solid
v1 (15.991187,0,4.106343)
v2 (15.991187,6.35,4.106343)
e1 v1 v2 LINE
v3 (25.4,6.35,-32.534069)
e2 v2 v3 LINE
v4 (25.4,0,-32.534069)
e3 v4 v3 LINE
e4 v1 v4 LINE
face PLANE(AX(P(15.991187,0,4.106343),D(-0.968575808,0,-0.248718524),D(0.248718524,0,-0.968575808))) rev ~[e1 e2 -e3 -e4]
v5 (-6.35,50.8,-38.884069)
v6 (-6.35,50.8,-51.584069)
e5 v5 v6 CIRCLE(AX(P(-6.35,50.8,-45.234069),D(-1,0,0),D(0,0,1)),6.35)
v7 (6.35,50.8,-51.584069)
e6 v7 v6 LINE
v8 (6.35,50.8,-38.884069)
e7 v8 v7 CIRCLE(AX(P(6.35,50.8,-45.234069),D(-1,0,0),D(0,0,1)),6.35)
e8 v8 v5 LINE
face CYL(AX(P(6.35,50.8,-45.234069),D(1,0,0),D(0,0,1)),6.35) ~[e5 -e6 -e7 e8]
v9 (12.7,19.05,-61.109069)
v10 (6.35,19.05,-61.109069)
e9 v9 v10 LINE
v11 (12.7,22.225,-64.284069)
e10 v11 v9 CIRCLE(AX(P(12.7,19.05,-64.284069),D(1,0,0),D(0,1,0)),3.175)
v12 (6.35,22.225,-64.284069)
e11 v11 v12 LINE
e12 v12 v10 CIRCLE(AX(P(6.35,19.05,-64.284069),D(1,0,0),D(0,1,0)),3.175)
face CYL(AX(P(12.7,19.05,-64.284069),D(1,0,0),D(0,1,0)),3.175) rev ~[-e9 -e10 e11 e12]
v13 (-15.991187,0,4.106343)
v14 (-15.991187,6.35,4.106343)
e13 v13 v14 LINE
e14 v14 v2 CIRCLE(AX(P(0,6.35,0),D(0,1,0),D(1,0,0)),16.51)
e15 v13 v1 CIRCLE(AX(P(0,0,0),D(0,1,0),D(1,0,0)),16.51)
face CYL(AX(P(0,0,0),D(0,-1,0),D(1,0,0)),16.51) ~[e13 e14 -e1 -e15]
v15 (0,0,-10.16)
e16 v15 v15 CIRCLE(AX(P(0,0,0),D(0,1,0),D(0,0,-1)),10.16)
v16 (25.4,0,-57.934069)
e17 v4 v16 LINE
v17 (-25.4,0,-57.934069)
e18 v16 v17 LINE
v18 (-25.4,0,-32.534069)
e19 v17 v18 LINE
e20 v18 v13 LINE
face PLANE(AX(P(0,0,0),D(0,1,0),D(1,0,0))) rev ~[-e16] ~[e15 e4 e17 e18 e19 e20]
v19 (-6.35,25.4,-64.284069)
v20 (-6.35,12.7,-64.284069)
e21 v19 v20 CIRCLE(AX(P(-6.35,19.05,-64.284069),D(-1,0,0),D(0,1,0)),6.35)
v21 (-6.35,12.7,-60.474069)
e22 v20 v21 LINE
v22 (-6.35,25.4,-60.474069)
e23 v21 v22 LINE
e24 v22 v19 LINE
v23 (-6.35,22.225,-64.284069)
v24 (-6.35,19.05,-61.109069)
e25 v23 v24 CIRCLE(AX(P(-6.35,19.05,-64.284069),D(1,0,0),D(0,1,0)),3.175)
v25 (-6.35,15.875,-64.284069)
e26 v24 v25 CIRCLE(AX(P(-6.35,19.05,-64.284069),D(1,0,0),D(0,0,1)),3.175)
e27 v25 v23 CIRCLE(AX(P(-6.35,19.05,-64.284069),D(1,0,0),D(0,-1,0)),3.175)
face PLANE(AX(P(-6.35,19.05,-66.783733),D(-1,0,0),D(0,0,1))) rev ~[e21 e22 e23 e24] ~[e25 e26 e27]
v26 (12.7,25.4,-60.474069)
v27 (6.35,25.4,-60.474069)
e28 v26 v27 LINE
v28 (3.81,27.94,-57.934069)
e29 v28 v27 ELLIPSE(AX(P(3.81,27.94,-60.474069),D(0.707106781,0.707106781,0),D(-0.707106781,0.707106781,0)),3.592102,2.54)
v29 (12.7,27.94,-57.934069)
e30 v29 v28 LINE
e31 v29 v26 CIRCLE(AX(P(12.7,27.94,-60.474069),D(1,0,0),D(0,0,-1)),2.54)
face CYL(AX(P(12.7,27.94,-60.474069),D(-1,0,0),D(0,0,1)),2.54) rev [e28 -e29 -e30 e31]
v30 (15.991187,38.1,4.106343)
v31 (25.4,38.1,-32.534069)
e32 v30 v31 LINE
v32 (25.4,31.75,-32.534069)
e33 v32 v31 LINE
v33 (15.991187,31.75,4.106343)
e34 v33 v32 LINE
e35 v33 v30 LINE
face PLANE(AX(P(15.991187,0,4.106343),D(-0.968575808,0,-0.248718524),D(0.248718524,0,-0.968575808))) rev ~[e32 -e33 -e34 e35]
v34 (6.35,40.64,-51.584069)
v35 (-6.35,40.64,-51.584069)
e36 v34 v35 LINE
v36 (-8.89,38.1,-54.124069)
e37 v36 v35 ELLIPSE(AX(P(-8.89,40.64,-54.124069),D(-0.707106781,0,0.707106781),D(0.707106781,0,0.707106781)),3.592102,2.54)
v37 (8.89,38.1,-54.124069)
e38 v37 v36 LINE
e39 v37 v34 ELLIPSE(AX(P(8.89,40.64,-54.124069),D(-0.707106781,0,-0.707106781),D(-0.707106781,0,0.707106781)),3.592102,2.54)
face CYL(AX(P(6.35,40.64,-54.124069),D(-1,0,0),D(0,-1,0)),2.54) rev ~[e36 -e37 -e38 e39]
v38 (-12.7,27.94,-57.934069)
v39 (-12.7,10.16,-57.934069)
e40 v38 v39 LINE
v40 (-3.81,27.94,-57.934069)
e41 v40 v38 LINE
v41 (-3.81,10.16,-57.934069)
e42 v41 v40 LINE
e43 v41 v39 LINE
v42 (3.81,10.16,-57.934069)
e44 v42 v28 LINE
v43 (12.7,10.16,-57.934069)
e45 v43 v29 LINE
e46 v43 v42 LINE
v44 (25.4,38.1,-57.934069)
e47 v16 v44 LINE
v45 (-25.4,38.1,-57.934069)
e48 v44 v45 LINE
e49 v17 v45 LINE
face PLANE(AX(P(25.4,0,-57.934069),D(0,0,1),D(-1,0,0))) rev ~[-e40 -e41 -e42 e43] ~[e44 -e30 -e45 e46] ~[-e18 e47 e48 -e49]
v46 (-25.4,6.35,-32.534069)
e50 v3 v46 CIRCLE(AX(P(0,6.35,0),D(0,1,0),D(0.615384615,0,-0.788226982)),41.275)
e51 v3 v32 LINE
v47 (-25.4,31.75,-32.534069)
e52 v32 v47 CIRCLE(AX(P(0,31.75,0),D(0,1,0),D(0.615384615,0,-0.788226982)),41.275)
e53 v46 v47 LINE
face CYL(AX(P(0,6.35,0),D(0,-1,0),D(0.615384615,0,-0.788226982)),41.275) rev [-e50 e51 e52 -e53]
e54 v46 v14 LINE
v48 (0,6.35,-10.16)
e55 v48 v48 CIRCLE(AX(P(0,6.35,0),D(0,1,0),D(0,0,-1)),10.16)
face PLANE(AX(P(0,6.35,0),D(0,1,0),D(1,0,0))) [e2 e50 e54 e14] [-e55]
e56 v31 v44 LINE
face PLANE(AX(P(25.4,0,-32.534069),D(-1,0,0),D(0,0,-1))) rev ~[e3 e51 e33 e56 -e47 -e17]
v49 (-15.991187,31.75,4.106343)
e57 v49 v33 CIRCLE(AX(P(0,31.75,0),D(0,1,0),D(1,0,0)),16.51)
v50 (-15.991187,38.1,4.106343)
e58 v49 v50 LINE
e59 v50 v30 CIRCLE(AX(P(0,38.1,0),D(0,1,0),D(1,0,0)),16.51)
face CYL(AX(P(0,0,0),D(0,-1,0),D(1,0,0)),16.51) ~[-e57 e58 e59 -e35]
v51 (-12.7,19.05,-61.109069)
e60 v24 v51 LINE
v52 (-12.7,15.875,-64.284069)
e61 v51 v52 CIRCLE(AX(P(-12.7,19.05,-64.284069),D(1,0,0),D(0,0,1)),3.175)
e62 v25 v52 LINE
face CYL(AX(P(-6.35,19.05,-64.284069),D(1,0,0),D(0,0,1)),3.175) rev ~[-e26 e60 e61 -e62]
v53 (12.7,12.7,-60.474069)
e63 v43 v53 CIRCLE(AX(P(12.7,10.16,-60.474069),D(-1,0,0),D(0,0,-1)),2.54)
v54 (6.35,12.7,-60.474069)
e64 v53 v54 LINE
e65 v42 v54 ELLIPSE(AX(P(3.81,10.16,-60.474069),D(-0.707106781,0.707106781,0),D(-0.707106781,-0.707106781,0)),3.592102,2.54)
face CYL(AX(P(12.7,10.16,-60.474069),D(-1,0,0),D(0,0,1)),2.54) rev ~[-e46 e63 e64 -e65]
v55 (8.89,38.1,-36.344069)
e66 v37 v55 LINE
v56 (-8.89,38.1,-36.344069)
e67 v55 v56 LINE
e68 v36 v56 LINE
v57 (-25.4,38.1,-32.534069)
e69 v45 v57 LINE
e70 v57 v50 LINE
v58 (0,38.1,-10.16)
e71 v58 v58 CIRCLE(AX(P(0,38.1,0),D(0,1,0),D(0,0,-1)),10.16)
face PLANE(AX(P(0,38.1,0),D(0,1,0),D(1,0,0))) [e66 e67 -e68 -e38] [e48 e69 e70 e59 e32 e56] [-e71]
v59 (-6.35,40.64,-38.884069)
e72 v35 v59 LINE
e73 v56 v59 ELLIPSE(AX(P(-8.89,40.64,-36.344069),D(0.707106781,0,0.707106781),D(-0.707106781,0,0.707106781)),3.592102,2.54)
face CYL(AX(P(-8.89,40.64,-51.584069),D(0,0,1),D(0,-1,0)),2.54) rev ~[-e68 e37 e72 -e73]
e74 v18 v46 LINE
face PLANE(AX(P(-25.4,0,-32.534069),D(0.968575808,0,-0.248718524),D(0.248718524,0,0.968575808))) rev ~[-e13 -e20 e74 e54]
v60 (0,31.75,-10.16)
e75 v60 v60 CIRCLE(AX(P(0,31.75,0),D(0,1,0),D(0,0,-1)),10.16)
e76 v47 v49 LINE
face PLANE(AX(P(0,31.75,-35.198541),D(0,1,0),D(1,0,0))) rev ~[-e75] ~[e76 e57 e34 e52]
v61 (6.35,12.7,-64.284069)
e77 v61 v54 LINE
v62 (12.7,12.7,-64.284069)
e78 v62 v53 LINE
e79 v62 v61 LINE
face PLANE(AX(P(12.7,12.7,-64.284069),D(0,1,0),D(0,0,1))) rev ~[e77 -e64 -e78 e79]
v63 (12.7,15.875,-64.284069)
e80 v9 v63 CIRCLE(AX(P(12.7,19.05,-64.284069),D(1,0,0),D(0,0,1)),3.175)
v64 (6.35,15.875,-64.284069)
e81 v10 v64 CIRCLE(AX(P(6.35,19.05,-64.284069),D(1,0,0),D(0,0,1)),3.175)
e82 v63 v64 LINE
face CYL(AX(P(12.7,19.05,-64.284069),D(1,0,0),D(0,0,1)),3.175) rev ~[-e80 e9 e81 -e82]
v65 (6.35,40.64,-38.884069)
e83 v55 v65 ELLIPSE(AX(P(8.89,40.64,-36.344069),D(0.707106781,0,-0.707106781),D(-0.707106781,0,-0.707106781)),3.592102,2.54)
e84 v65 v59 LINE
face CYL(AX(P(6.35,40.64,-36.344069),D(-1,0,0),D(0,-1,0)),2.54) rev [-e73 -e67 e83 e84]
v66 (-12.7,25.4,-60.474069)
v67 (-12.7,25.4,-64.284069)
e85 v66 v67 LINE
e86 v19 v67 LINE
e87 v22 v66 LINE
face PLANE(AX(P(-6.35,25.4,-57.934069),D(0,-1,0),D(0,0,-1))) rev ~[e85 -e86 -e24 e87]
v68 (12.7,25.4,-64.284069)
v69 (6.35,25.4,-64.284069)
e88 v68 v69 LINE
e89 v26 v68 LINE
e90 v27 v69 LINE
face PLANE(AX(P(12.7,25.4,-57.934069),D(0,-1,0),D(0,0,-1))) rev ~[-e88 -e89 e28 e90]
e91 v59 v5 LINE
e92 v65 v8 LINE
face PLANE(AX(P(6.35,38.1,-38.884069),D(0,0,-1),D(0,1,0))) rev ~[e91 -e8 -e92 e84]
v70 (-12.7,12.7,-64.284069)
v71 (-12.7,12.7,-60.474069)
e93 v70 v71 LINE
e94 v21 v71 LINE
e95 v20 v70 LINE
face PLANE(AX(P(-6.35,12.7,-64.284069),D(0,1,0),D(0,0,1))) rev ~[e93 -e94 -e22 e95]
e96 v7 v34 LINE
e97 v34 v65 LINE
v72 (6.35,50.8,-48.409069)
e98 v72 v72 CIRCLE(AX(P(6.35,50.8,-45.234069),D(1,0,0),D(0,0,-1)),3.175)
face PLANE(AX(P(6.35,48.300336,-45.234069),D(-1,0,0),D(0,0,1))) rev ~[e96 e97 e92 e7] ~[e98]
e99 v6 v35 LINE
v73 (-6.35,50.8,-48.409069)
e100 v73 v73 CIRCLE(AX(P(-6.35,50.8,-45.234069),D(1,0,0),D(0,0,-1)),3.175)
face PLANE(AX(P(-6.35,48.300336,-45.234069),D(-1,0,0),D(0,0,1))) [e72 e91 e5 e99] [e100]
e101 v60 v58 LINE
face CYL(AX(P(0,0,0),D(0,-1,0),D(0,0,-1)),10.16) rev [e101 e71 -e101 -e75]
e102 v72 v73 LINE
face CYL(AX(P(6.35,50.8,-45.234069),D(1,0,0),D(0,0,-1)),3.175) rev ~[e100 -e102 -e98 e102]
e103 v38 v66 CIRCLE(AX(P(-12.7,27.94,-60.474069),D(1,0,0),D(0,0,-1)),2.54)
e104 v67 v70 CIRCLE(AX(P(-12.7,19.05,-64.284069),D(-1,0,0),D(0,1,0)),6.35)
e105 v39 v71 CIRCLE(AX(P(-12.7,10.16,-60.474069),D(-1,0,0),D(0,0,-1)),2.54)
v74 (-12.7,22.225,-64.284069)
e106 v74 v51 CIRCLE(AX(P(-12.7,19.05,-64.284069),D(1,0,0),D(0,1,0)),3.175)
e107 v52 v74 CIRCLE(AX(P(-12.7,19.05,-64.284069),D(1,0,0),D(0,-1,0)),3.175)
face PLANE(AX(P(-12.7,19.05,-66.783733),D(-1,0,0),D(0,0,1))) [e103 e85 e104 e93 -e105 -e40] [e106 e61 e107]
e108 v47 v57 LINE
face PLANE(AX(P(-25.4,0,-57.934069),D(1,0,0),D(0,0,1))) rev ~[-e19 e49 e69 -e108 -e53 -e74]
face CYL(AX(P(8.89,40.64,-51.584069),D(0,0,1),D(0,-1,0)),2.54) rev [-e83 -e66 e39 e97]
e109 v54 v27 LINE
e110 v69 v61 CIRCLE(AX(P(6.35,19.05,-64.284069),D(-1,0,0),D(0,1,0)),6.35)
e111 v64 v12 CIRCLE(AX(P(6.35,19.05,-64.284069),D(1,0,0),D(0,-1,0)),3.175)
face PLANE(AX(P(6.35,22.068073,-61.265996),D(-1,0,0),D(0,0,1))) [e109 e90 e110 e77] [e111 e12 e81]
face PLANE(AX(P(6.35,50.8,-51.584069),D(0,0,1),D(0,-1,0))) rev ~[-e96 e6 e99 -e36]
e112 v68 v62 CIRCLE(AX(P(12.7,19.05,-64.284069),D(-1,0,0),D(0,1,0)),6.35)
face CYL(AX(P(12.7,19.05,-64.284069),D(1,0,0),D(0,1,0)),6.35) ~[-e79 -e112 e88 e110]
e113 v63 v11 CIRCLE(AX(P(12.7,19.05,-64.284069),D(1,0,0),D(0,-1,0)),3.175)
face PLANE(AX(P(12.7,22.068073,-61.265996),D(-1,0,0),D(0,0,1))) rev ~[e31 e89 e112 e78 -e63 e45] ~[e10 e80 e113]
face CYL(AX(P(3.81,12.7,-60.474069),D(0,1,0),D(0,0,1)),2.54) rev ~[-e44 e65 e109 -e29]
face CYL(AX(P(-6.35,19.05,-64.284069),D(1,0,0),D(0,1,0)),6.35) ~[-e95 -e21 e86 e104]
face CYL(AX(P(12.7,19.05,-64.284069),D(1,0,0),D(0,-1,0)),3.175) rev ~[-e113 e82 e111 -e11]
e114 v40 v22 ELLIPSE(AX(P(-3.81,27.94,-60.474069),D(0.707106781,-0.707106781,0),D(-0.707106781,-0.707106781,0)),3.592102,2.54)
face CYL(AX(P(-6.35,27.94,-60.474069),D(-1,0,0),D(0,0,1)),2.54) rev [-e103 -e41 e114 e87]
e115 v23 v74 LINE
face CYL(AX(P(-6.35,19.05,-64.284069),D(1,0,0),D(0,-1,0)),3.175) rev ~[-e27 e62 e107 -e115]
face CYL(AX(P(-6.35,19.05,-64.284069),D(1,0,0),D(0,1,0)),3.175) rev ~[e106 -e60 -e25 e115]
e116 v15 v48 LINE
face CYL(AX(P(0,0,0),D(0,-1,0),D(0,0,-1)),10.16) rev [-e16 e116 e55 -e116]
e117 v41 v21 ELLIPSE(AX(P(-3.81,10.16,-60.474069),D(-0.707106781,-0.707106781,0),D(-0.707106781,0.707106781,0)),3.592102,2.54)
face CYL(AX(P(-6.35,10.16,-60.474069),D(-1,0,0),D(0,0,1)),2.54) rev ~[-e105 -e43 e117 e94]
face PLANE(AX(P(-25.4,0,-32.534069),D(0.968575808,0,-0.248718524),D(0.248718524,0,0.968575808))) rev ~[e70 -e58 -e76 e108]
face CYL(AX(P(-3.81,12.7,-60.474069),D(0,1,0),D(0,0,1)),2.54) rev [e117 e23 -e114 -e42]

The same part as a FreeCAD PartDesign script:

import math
import FreeCAD as App
import Part
import Sketcher

V = App.Vector
Q = App.Units.Quantity


def edges_at(feature, points):
    """Names of the edges that pass closest to the given points."""
    edges = feature.Shape.Edges
    near = lambda p: min(range(len(edges)), key=lambda i: edges[i].distToShape(Part.Vertex(*p))[0])
    return sorted({f"Edge{near(p) + 1}" for p in points})

doc = App.newDocument("Part")
body = doc.addObject("PartDesign::Body", "Body")

# Sketch on XZ plane
sketch1 = body.newObject("Sketcher::SketchObject", "Sketch")
sketch1.AttachmentSupport = (doc.getObject("XZ_Plane"), [""])
sketch1.MapMode = "FlatFace"
sketch1.addGeometry([
    Part.LineSegment(V(-25, -58, 0), V(-25, -33, 0)),  # 0
    Part.LineSegment(V(-25, -33, 0), V(-16, 4, 0)),  # 1
    Part.ArcOfCircle(Part.Circle(V(0, 0, 0), V(0, 0, 1), 17), math.radians(14), math.radians(166)),  # 2
    Part.LineSegment(V(16, 4, 0), V(25, -33, 0)),  # 3
    Part.LineSegment(V(25, -33, 0), V(25, -58, 0)),  # 4
    Part.LineSegment(V(25, -58, 0), V(-25, -58, 0)),  # 5
    Part.Circle(V(0, 0, 0), V(0, 0, 1), 10),  # 6
], False)
sketch1.addConstraint([
    Sketcher.Constraint("Coincident", 0, 2, 1, 1),
    Sketcher.Constraint("Tangent", 1, 2, 2, 2),
    Sketcher.Constraint("Tangent", 2, 1, 3, 1),
    Sketcher.Constraint("Coincident", 3, 2, 4, 1),
    Sketcher.Constraint("Coincident", 4, 2, 5, 1),
    Sketcher.Constraint("Coincident", 5, 2, 0, 1),
    Sketcher.Constraint("Vertical", 0),
    Sketcher.Constraint("Vertical", 4),
    Sketcher.Constraint("Horizontal", 5),
    Sketcher.Constraint("Coincident", 2, 3, -1, 1),
    Sketcher.Constraint("Coincident", 6, 3, -1, 1),
    Sketcher.Constraint("Symmetric", 0, 2, 3, 2, -2),
    Sketcher.Constraint("Diameter", 6, Q("0.8 in")),
    Sketcher.Constraint("DistanceX", 5, 2, 5, 1, Q("2 in")),
    Sketcher.Constraint("DistanceY", 0, 1, 0, 2, Q("1 in")),
    Sketcher.Constraint("Radius", 2, Q("0.65 in")),
    Sketcher.Constraint("DistanceY", 0, 2, -1, 1, Q("32.534069 mm")),
])
pad1 = body.newObject("PartDesign::Pad", "Pad")
pad1.Profile = sketch1
pad1.Length = Q("1.5 in")
pad1.Reversed = True

# Sketch on XZ plane
sketch2 = body.newObject("Sketcher::SketchObject", "Sketch001")
sketch2.AttachmentSupport = (doc.getObject("XZ_Plane"), [""])
sketch2.MapMode = "FlatFace"
sketch2.AttachmentOffset = App.Placement(V(0, 0, -0.25 * 25.4), App.Rotation())
sketch2.addGeometry([
    Part.LineSegment(V(-25, -33, 0), V(-16, 4, 0)),  # 0
    Part.ArcOfCircle(Part.Circle(V(0, 0, 0), V(0, 0, 1), 17), math.radians(14), math.radians(166)),  # 1
    Part.LineSegment(V(16, 4, 0), V(25, -33, 0)),  # 2
    Part.ArcOfCircle(Part.Circle(V(0, 0, 0), V(0, 0, 1), 41), math.radians(-128), math.radians(-52)),  # 3
    Part.Circle(V(0, 0, 0), V(0, 0, 1), 10),  # 4
], False)
sketch2.addConstraint([
    Sketcher.Constraint("Tangent", 0, 2, 1, 2),
    Sketcher.Constraint("Tangent", 1, 1, 2, 1),
    Sketcher.Constraint("Coincident", 2, 2, 3, 2),
    Sketcher.Constraint("Coincident", 3, 1, 0, 1),
    Sketcher.Constraint("Coincident", 1, 3, -1, 1),
    Sketcher.Constraint("Coincident", 3, 3, -1, 1),
    Sketcher.Constraint("Coincident", 4, 3, -1, 1),
    Sketcher.Constraint("Horizontal", 0, 2, 1, 1),
    Sketcher.Constraint("Diameter", 4, Q("0.8 in")),
    Sketcher.Constraint("Radius", 1, Q("0.65 in")),
    Sketcher.Constraint("DistanceX", -1, 1, 2, 2, Q("1 in")),
    Sketcher.Constraint("Radius", 3, Q("1.625 in")),
])
pocket1 = body.newObject("PartDesign::Pocket", "Pocket")
pocket1.Profile = sketch2
pocket1.Length = Q("1 in")

# Sketch on YZ plane
sketch3 = body.newObject("Sketcher::SketchObject", "Sketch002")
sketch3.AttachmentSupport = (doc.getObject("YZ_Plane"), [""])
sketch3.MapMode = "FlatFace"
sketch3.addGeometry([
    Part.ArcOfCircle(Part.Circle(V(50.8, -45.2, 0), V(0, 0, 1), 6.3), math.radians(-90), math.radians(90)),  # 0
    Part.LineSegment(V(50.8, -51.6, 0), V(38.1, -51.6, 0)),  # 1
    Part.LineSegment(V(38.1, -51.6, 0), V(38.1, -38.9, 0)),  # 2
    Part.LineSegment(V(38.1, -38.9, 0), V(50.8, -38.9, 0)),  # 3
    Part.Circle(V(50.8, -45.2, 0), V(0, 0, 1), 3.2),  # 4
], False)
sketch3.addConstraint([
    Sketcher.Constraint("Tangent", 0, 1, 1, 1),
    Sketcher.Constraint("Coincident", 1, 2, 2, 1),
    Sketcher.Constraint("Coincident", 2, 2, 3, 1),
    Sketcher.Constraint("Tangent", 3, 2, 0, 2),
    Sketcher.Constraint("Horizontal", 1),
    Sketcher.Constraint("Vertical", 2),
    Sketcher.Constraint("Horizontal", 3),
    Sketcher.Constraint("Coincident", 4, 3, 0, 3),
    Sketcher.Constraint("Equal", 3, 2),
    Sketcher.Constraint("Diameter", 4, Q("0.25 in")),
    Sketcher.Constraint("Radius", 0, Q("0.25 in")),
    Sketcher.Constraint("DistanceX", -1, 1, 0, 3, Q("2 in")),
    Sketcher.Constraint("DistanceY", 0, 3, -1, 1, Q("45.234069 mm")),
])
pad2 = body.newObject("PartDesign::Pad", "Pad001")
pad2.Profile = sketch3
pad2.Type = "TwoLengths"
pad2.Length = Q("0.25 in")
pad2.Length2 = Q("0.25 in")
pad2.Reversed = True

# Sketch on YZ plane
sketch4 = body.newObject("Sketcher::SketchObject", "Sketch003")
sketch4.AttachmentSupport = (doc.getObject("YZ_Plane"), [""])
sketch4.MapMode = "FlatFace"
sketch4.AttachmentOffset = App.Placement(V(0, 0, -0.25 * 25.4), App.Rotation())
sketch4.addGeometry([
    Part.ArcOfCircle(Part.Circle(V(19.1, -64.3, 0), V(0, 0, 1), 6.3), math.radians(180), math.radians(360)),  # 0
    Part.LineSegment(V(12.7, -64.3, 0), V(12.7, -57.9, 0)),  # 1
    Part.LineSegment(V(12.7, -57.9, 0), V(25.4, -57.9, 0)),  # 2
    Part.LineSegment(V(25.4, -57.9, 0), V(25.4, -64.3, 0)),  # 3
    Part.ArcOfCircle(Part.Circle(V(19.1, -64.3, 0), V(0, 0, 1), 3.2), math.radians(90), math.radians(180)),  # 4
    Part.ArcOfCircle(Part.Circle(V(19.1, -64.3, 0), V(0, 0, 1), 3.2), math.radians(180), math.radians(360)),  # 5
    Part.ArcOfCircle(Part.Circle(V(19, -64.3, 0), V(0, 0, 1), 3.2), math.radians(0), math.radians(90)),  # 6
], False)
sketch4.addConstraint([
    Sketcher.Constraint("Tangent", 0, 1, 1, 1),
    Sketcher.Constraint("Coincident", 1, 2, 2, 1),
    Sketcher.Constraint("Coincident", 2, 2, 3, 1),
    Sketcher.Constraint("Tangent", 3, 2, 0, 2),
    Sketcher.Constraint("Tangent", 4, 2, 5, 1),
    Sketcher.Constraint("Tangent", 5, 2, 6, 1),
    Sketcher.Constraint("Tangent", 6, 2, 4, 1),
    Sketcher.Constraint("Vertical", 1),
    Sketcher.Constraint("Horizontal", 2),
    Sketcher.Constraint("Vertical", 3),
    Sketcher.Constraint("Coincident", 4, 3, 0, 3),
    Sketcher.Constraint("Horizontal", 3, 2, 4, 2),
    Sketcher.Constraint("Horizontal", 4, 2, 5, 2),
    Sketcher.Constraint("Vertical", 5, 3, 6, 2),
    Sketcher.Constraint("Radius", 0, Q("0.25 in")),
    Sketcher.Constraint("DistanceX", -1, 1, 2, 2, Q("1 in")),
    Sketcher.Constraint("Radius", 4, Q("0.125 in")),
    Sketcher.Constraint("DistanceY", 1, 1, 1, 2, Q("0.25 in")),
    Sketcher.Constraint("DistanceY", 0, 3, -1, 1, Q("64.284069 mm")),
])
pad3 = body.newObject("PartDesign::Pad", "Pad002")
pad3.Profile = sketch4
pad3.Length = Q("0.25 in")
pad3.Reversed = True

# Sketch on YZ plane
sketch5 = body.newObject("Sketcher::SketchObject", "Sketch004")
sketch5.AttachmentSupport = (doc.getObject("YZ_Plane"), [""])
sketch5.MapMode = "FlatFace"
sketch5.AttachmentOffset = App.Placement(V(0, 0, 0.5 * 25.4), App.Rotation())
sketch5.addGeometry([
    Part.ArcOfCircle(Part.Circle(V(19.1, -64.3, 0), V(0, 0, 1), 6.3), math.radians(180), math.radians(360)),  # 0
    Part.LineSegment(V(12.7, -64.3, 0), V(12.7, -57.9, 0)),  # 1
    Part.LineSegment(V(12.7, -57.9, 0), V(25.4, -57.9, 0)),  # 2
    Part.LineSegment(V(25.4, -57.9, 0), V(25.4, -64.3, 0)),  # 3
    Part.ArcOfCircle(Part.Circle(V(19.1, -64.3, 0), V(0, 0, 1), 3.2), math.radians(180), math.radians(360)),  # 4
    Part.ArcOfCircle(Part.Circle(V(19, -64.3, 0), V(0, 0, 1), 3.2), math.radians(0), math.radians(90)),  # 5
    Part.ArcOfCircle(Part.Circle(V(19.1, -64.3, 0), V(0, 0, 1), 3.2), math.radians(90), math.radians(180)),  # 6
], False)
sketch5.addConstraint([
    Sketcher.Constraint("Tangent", 0, 1, 1, 1),
    Sketcher.Constraint("Coincident", 1, 2, 2, 1),
    Sketcher.Constraint("Coincident", 2, 2, 3, 1),
    Sketcher.Constraint("Tangent", 3, 2, 0, 2),
    Sketcher.Constraint("Tangent", 4, 2, 5, 1),
    Sketcher.Constraint("Tangent", 5, 2, 6, 1),
    Sketcher.Constraint("Tangent", 6, 2, 4, 1),
    Sketcher.Constraint("Vertical", 1),
    Sketcher.Constraint("Horizontal", 2),
    Sketcher.Constraint("Vertical", 3),
    Sketcher.Constraint("Coincident", 4, 3, 0, 3),
    Sketcher.Constraint("Horizontal", 3, 2, 4, 2),
    Sketcher.Constraint("Horizontal", 4, 2, 6, 2),
    Sketcher.Constraint("Vertical", 6, 3, 5, 2),
    Sketcher.Constraint("Radius", 0, Q("0.25 in")),
    Sketcher.Constraint("DistanceX", -1, 1, 2, 2, Q("1 in")),
    Sketcher.Constraint("Radius", 4, Q("0.125 in")),
    Sketcher.Constraint("DistanceY", 1, 1, 1, 2, Q("0.25 in")),
    Sketcher.Constraint("DistanceY", 0, 3, -1, 1, Q("64.284069 mm")),
])
pad4 = body.newObject("PartDesign::Pad", "Pad003")
pad4.Profile = sketch5
pad4.Length = Q("0.25 in")
pad4.Reversed = True
doc.recompute()

fillet = body.newObject("PartDesign::Fillet", "Fillet")
fillet.Base = (pad4, edges_at(pad4, [
    (0, 38.1, -38.884),
    (-6.35, 38.1, -45.234),
    (0, 38.1, -51.584),
    (6.35, 38.1, -45.234),
    (-9.525, 12.7, -57.934),
    (-9.525, 25.4, -57.934),
    (-6.35, 19.05, -57.934),
    (9.525, 25.4, -57.934),
    (9.525, 12.7, -57.934),
    (6.35, 19.05, -57.934),
]))
fillet.Radius = Q("0.1 in")

doc.recompute()
